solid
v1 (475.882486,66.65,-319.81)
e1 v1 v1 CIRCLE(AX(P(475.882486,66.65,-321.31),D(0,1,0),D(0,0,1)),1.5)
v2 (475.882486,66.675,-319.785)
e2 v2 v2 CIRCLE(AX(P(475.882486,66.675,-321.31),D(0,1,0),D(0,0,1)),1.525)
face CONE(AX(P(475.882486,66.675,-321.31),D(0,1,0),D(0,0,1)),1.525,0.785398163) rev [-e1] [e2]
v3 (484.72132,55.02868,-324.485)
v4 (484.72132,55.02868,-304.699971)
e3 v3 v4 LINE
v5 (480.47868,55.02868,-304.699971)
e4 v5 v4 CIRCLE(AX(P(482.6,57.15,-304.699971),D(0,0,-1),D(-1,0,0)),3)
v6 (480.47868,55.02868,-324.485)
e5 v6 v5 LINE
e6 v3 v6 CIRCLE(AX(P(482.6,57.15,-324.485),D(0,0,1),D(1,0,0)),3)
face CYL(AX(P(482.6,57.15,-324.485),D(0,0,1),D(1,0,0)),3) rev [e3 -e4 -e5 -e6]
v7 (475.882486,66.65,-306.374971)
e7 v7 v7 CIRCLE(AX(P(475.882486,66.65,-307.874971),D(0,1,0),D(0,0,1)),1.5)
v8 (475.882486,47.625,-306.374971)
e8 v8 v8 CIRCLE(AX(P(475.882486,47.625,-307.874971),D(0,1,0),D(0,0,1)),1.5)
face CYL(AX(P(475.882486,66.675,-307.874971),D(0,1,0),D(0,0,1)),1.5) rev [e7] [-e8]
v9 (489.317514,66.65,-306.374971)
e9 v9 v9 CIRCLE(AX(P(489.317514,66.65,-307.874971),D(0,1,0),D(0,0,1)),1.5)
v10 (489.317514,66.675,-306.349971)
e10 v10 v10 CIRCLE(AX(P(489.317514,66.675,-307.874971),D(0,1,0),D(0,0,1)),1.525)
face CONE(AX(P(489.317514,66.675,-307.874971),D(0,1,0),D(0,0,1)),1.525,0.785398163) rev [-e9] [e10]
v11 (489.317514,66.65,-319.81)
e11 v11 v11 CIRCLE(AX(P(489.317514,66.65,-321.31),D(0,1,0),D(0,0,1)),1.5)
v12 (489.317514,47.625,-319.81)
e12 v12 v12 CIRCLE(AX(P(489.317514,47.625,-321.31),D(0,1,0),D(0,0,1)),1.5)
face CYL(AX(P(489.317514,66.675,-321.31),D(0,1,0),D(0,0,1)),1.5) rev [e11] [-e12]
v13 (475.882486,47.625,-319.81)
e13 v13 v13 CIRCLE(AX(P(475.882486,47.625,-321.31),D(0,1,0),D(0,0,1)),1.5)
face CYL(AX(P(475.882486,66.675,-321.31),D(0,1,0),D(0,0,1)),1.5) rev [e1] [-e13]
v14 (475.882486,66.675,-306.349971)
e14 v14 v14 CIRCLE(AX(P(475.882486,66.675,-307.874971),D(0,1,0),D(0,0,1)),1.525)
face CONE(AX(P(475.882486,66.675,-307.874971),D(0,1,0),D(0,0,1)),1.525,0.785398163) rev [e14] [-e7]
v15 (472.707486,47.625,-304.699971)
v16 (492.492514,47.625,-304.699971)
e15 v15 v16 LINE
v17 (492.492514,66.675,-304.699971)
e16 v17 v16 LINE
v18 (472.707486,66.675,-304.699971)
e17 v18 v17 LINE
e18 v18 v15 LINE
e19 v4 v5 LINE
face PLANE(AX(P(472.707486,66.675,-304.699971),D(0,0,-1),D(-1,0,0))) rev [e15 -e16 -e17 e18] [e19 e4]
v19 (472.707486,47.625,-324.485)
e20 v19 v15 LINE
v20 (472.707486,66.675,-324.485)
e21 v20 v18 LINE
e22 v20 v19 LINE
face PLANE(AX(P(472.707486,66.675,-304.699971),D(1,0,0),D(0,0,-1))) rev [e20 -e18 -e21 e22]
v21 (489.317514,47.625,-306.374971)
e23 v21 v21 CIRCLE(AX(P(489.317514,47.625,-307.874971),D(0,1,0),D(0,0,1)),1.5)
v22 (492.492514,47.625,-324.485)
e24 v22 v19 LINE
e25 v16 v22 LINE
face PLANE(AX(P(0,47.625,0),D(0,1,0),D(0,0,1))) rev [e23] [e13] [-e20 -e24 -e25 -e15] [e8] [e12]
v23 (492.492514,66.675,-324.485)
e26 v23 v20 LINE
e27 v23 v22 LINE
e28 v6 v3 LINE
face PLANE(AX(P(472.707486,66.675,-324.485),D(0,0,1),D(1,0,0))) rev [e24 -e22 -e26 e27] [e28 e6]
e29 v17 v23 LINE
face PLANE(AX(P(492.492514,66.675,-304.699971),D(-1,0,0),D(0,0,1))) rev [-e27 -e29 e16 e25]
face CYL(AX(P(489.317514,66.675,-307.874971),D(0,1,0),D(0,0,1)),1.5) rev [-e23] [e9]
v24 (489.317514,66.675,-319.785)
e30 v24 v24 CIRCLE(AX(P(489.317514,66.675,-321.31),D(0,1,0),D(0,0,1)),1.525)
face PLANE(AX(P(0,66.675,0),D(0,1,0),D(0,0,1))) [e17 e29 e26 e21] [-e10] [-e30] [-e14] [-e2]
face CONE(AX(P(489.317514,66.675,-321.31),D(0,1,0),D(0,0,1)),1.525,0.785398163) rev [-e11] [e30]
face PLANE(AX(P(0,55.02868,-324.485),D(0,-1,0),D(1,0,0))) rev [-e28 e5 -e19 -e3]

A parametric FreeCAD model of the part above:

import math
import FreeCAD as App
import Part
import Sketcher
from FreeCAD import Vector

doc = App.newDocument("Part")
body = doc.addObject("PartDesign::Body", "Body")

# Sketch on XZ plane
sketch1 = doc.addObject("Sketcher::SketchObject", "Sketch")
body.addObject(sketch1)
sketch1.AttachmentSupport = (doc.XZ_Plane, [""])
sketch1.MapMode = "FlatFace"
sketch1.AttachmentOffset = App.Placement(Vector(0, 0, -47.625), App.Rotation())
sketch1.addGeometry([
    Part.LineSegment(Vector(473, -324, 0), Vector(473, -305, 0)),
    Part.LineSegment(Vector(473, -305, 0), Vector(492, -305, 0)),
    Part.LineSegment(Vector(492, -305, 0), Vector(492, -324, 0)),
    Part.LineSegment(Vector(492, -324, 0), Vector(473, -324, 0)),
], False)
sketch1.addConstraint([
    Sketcher.Constraint("Coincident", 0, 2, 1, 1),
    Sketcher.Constraint("Coincident", 1, 2, 2, 1),
    Sketcher.Constraint("Coincident", 2, 2, 3, 1),
    Sketcher.Constraint("Coincident", 3, 2, 0, 1),
    Sketcher.Constraint("Vertical", 0),
    Sketcher.Constraint("Horizontal", 1),
    Sketcher.Constraint("Vertical", 2),
    Sketcher.Constraint("Horizontal", 3),
    Sketcher.Constraint("Equal", 3, 0),
    Sketcher.Constraint("DistanceY", 2, 2, -1, 1, 324.485),
    Sketcher.Constraint("DistanceX", 1, 1, 1, 2, 19.785029),
    Sketcher.Constraint("DistanceX", -1, 1, 0, 2, 472.707486),
])
pad1 = doc.addObject("PartDesign::Pad", "Pad")
body.addObject(pad1)
pad1.Profile = sketch1
pad1.Length = 19.05
pad1.Reversed = True

# Sketch on XZ plane
sketch2 = doc.addObject("Sketcher::SketchObject", "Sketch001")
body.addObject(sketch2)
sketch2.AttachmentSupport = (doc.XZ_Plane, [""])
sketch2.MapMode = "FlatFace"
sketch2.AttachmentOffset = App.Placement(Vector(0, 0, -66.675), App.Rotation())
sketch2.addGeometry([
    Part.Circle(Vector(475.9, -321.3, 0), Vector(0, 0, 1), 1.5),
    Part.Circle(Vector(489.3, -321.3, 0), Vector(0, 0, 1), 1.5),
    Part.Circle(Vector(489.3, -307.9, 0), Vector(0, 0, 1), 1.5),
    Part.Circle(Vector(475.9, -307.9, 0), Vector(0, 0, 1), 1.5),
], False)
sketch2.addConstraint([
    Sketcher.Constraint("Equal", 0, 1),
    Sketcher.Constraint("Equal", 1, 2),
    Sketcher.Constraint("Equal", 2, 3),
    Sketcher.Constraint("Horizontal", 0, 3, 1, 3),
    Sketcher.Constraint("Horizontal", 2, 3, 3, 3),
    Sketcher.Constraint("Vertical", 1, 3, 2, 3),
    Sketcher.Constraint("Vertical", 0, 3, 3, 3),
    Sketcher.Constraint("Diameter", 0, 3.0),
    Sketcher.Constraint("DistanceY", 0, 3, -1, 1, 321.31),
    Sketcher.Constraint("DistanceY", 2, 3, -1, 1, 307.874971),
    Sketcher.Constraint("DistanceX", 0, 3, 1, 3, 13.435029),
    Sketcher.Constraint("DistanceX", -1, 1, 0, 3, 475.882486),
])
doc.recompute()
hole = doc.addObject("PartDesign::Hole", "Hole")
body.addObject(hole)
hole.Profile = sketch2
hole.ThreadType = "None"
hole.Diameter = 3
hole.DepthType = "Dimension"
hole.Depth = 25.4
hole.DrillPoint = "Angled"
hole.DrillPointAngle = 118
hole.HoleCutType = "Countersink"
hole.HoleCutDiameter = 3.05
hole.HoleCutCountersinkAngle = 90
hole.Reversed = True

# Sketch on XY plane
sketch3 = doc.addObject("Sketcher::SketchObject", "Sketch002")
body.addObject(sketch3)
sketch3.AttachmentSupport = (doc.XY_Plane, [""])
sketch3.MapMode = "FlatFace"
sketch3.addGeometry([
    Part.ArcOfCircle(Part.Circle(Vector(482.6, 57.1, 0), Vector(0, 0, 1), 3), math.radians(0), math.radians(225)),
    Part.LineSegment(Vector(480.5, 55, 0), Vector(484.7, 55, 0)),
    Part.ArcOfCircle(Part.Circle(Vector(482.6, 57.1, 0), Vector(0, 0, 1), 3), math.radians(-45), math.radians(0)),
], False)
sketch3.addConstraint([
    Sketcher.Constraint("Coincident", 0, 2, 1, 1),
    Sketcher.Constraint("Coincident", 1, 2, 2, 1),
    Sketcher.Constraint("Tangent", 2, 2, 0, 1),
    Sketcher.Constraint("Horizontal", 1),
    Sketcher.Constraint("Equal", 0, 2),
    Sketcher.Constraint("Horizontal", 0, 3, 2, 2),
    Sketcher.Constraint("Radius", 0, 3.0),
    Sketcher.Constraint("DistanceX", -1, 1, 0, 3, 482.6),
    Sketcher.Constraint("DistanceY", -1, 1, 0, 3, 57.15),
    Sketcher.Constraint("DistanceX", 1, 1, 1, 2, 4.242641),
])
pocket1 = doc.addObject("PartDesign::Pocket", "Pocket")
body.addObject(pocket1)
pocket1.Profile = sketch3
pocket1.Type = "ThroughAll"

doc.recompute()
